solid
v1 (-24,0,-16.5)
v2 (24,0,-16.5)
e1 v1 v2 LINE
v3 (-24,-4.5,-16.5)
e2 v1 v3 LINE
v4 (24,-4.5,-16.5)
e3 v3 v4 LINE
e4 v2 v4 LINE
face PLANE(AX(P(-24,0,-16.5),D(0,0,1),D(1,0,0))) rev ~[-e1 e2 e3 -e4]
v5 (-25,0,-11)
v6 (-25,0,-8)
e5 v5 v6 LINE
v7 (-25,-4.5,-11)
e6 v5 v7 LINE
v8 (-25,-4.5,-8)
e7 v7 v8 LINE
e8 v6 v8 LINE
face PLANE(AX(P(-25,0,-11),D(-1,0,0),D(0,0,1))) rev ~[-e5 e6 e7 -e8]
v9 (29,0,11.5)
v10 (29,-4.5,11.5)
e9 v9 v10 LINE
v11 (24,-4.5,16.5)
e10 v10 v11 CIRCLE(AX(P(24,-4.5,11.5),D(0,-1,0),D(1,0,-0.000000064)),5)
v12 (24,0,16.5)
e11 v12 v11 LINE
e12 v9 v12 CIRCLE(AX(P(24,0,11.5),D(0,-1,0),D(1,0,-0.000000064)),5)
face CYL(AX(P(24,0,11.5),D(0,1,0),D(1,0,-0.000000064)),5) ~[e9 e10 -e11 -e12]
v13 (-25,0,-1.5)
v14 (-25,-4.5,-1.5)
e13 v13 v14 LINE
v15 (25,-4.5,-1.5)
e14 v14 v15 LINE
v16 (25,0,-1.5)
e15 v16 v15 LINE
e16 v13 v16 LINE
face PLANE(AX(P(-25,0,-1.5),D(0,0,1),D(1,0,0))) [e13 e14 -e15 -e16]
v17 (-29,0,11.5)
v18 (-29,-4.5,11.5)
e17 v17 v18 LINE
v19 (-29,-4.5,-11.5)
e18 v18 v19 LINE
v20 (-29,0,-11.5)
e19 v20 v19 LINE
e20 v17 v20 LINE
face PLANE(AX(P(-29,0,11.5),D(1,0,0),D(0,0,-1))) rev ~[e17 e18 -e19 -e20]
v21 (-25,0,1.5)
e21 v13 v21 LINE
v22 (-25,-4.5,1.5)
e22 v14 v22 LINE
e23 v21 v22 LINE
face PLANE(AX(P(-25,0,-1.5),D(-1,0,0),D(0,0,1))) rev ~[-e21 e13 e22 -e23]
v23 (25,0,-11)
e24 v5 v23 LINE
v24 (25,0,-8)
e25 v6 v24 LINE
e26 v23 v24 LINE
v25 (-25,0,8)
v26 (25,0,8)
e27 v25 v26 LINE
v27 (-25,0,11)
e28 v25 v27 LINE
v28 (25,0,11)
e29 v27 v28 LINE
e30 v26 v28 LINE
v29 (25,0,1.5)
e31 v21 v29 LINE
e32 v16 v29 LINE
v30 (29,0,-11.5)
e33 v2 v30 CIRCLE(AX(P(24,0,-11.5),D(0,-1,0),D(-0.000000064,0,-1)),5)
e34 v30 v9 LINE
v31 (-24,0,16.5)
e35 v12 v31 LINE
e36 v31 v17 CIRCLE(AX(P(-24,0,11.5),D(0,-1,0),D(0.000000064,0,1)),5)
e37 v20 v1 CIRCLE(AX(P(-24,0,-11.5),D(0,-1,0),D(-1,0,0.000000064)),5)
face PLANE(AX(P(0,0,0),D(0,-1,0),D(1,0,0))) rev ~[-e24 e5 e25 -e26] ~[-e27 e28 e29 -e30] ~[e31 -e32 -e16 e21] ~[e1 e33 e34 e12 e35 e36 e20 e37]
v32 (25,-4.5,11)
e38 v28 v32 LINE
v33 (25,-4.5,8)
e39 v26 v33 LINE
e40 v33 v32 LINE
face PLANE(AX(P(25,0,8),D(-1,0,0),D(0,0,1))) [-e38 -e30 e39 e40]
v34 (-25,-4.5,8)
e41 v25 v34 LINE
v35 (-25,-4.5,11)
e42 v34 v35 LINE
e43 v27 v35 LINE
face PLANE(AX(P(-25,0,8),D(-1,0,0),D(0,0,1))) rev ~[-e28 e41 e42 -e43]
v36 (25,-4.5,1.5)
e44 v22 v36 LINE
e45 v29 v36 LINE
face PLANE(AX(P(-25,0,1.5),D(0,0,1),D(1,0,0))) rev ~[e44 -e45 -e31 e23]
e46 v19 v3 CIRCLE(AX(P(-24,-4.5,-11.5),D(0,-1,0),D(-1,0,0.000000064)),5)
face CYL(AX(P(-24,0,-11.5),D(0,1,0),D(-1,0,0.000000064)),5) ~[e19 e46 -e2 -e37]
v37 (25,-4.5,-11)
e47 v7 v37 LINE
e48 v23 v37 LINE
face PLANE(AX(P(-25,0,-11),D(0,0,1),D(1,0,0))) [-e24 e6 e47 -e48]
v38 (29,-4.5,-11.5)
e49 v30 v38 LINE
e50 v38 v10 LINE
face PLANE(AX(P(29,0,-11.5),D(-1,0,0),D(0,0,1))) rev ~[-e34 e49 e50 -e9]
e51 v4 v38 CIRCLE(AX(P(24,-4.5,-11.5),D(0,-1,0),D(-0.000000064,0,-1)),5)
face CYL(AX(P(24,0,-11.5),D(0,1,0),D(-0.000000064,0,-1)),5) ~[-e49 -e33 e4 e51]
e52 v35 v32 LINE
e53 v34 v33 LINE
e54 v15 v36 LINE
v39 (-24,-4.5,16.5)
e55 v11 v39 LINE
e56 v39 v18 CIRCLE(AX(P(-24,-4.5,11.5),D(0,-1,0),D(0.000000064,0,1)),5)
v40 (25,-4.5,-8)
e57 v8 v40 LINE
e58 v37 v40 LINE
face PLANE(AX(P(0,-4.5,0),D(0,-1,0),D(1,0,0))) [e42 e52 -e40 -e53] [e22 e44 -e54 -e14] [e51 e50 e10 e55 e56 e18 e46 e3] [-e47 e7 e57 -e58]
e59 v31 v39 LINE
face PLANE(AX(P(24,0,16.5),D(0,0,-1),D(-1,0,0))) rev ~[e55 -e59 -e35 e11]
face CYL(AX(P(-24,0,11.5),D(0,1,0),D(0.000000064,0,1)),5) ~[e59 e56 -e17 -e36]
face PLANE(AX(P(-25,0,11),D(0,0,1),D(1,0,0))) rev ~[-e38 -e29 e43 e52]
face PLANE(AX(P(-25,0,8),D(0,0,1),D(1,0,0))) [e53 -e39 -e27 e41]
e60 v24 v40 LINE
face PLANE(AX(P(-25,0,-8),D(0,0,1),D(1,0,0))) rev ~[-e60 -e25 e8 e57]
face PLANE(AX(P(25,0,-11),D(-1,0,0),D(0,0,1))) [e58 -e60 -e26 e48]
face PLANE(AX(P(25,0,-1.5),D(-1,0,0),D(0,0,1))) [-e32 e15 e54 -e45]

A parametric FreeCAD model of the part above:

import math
import FreeCAD as App
import Part
import Sketcher

V = App.Vector


def add_polygon(sketch, points):
    """Adds a closed chain of lines whose ends are joined by coincident constraints."""
    first, n = sketch.GeometryCount, len(points)
    for a, b in zip(points, points[1:] + points[:1]):
        sketch.addGeometry(Part.LineSegment(App.Vector(*a, 0), App.Vector(*b, 0)), False)
    for i in range(n):
        sketch.addConstraint(Sketcher.Constraint("Coincident", first + i, 2, first + (i + 1) % n, 1))

doc = App.newDocument("Part")
body = doc.addObject("PartDesign::Body", "Body")

sketch1 = body.newObject("Sketcher::SketchObject", "Sketch")
sketch1.AttachmentSupport = (doc.getObject("XZ_Plane"), [""])
sketch1.MapMode = "FlatFace"
sketch1.addGeometry(Part.LineSegment(V(-24, -16.5, 0), V(24, -16.5, 0)), False)
sketch1.addGeometry(Part.ArcOfCircle(Part.Circle(V(24, -11.5, 0), V(0, 0, 1), 5), math.radians(-90.000004), math.radians(0.000004)), False)
sketch1.addGeometry(Part.LineSegment(V(29, -11.5, 0), V(29, 11.5, 0)), False)
sketch1.addGeometry(Part.ArcOfCircle(Part.Circle(V(24, 11.5, 0), V(0, 0, 1), 5), math.radians(-0.000004), math.radians(90.000004)), False)
sketch1.addGeometry(Part.LineSegment(V(24, 16.5, 0), V(-24, 16.5, 0)), False)
sketch1.addGeometry(Part.ArcOfCircle(Part.Circle(V(-24, 11.5, 0), V(0, 0, 1), 5), math.radians(89.999996), math.radians(180.000004)), False)
sketch1.addGeometry(Part.LineSegment(V(-29, 11.5, 0), V(-29, -11.5, 0)), False)
sketch1.addGeometry(Part.ArcOfCircle(Part.Circle(V(-24, -11.5, 0), V(0, 0, 1), 5), math.radians(179.999996), math.radians(270.000004)), False)
sketch1.addConstraint(Sketcher.Constraint("Tangent", 0, 2, 1, 1))
sketch1.addConstraint(Sketcher.Constraint("Tangent", 1, 2, 2, 1))
sketch1.addConstraint(Sketcher.Constraint("Tangent", 2, 2, 3, 1))
sketch1.addConstraint(Sketcher.Constraint("Tangent", 3, 2, 4, 1))
sketch1.addConstraint(Sketcher.Constraint("Tangent", 4, 2, 5, 1))
sketch1.addConstraint(Sketcher.Constraint("Tangent", 5, 2, 6, 1))
sketch1.addConstraint(Sketcher.Constraint("Tangent", 6, 2, 7, 1))
sketch1.addConstraint(Sketcher.Constraint("Tangent", 7, 2, 0, 1))
sketch1.addConstraint(Sketcher.Constraint("Horizontal", 0))
sketch1.addConstraint(Sketcher.Constraint("Vertical", 2))
sketch1.addConstraint(Sketcher.Constraint("Horizontal", 4))
sketch1.addConstraint(Sketcher.Constraint("Vertical", 6))
sketch1.addConstraint(Sketcher.Constraint("Equal", 1, 3))
sketch1.addConstraint(Sketcher.Constraint("Equal", 3, 5))
sketch1.addConstraint(Sketcher.Constraint("Equal", 5, 7))
sketch1.addConstraint(Sketcher.Constraint("Symmetric", 1, 3, 5, 3, -1, 1))
sketch1.addConstraint(Sketcher.Constraint("Radius", 1, 5.0))
sketch1.addConstraint(Sketcher.Constraint("DistanceX", 0, 1, 0, 2, 48.0))
sketch1.addConstraint(Sketcher.Constraint("DistanceY", 2, 1, 2, 2, 23.0))
pad1 = body.newObject("PartDesign::Pad", "Pad")
pad1.Profile = sketch1
pad1.Length = 4.5

sketch2 = body.newObject("Sketcher::SketchObject", "Sketch001")
sketch2.AttachmentSupport = (doc.getObject("XZ_Plane"), [""])
sketch2.MapMode = "FlatFace"
add_polygon(sketch2, [(-25, 1.5), (-25, -1.5), (25, -1.5), (25, 1.5)])
add_polygon(sketch2, [(-25, 11), (-25, 8), (25, 8), (25, 11)])
add_polygon(sketch2, [(-25, -8), (-25, -11), (25, -11), (25, -8)])
sketch2.addConstraint(Sketcher.Constraint("Vertical", 0))
sketch2.addConstraint(Sketcher.Constraint("Horizontal", 1))
sketch2.addConstraint(Sketcher.Constraint("Vertical", 2))
sketch2.addConstraint(Sketcher.Constraint("Horizontal", 3))
sketch2.addConstraint(Sketcher.Constraint("Vertical", 4))
sketch2.addConstraint(Sketcher.Constraint("Horizontal", 5))
sketch2.addConstraint(Sketcher.Constraint("Vertical", 6))
sketch2.addConstraint(Sketcher.Constraint("Horizontal", 7))
sketch2.addConstraint(Sketcher.Constraint("Vertical", 8))
sketch2.addConstraint(Sketcher.Constraint("Horizontal", 9))
sketch2.addConstraint(Sketcher.Constraint("Vertical", 10))
sketch2.addConstraint(Sketcher.Constraint("Horizontal", 11))
sketch2.addConstraint(Sketcher.Constraint("Symmetric", 0, 2, 2, 2, -1, 1))
sketch2.addConstraint(Sketcher.Constraint("Symmetric", 6, 2, 8, 2, -1, 1))
sketch2.addConstraint(Sketcher.Constraint("Symmetric", 4, 2, 10, 2, -1, 1))
sketch2.addConstraint(Sketcher.Constraint("Vertical", 3, 2, 4, 2))
sketch2.addConstraint(Sketcher.Constraint("Vertical", 2, 2, 5, 2))
sketch2.addConstraint(Sketcher.Constraint("Equal", 2, 4))
sketch2.addConstraint(Sketcher.Constraint("DistanceX", 1, 1, 1, 2, 50.0))
sketch2.addConstraint(Sketcher.Constraint("DistanceY", 0, 2, 0, 1, 3.0))
sketch2.addConstraint(Sketcher.Constraint("DistanceY", -1, 1, 4, 2, 8.0))
pocket1 = body.newObject("PartDesign::Pocket", "Pocket")
pocket1.Profile = sketch2
pocket1.Length = 4.5
pocket1.Reversed = True

doc.recompute()
